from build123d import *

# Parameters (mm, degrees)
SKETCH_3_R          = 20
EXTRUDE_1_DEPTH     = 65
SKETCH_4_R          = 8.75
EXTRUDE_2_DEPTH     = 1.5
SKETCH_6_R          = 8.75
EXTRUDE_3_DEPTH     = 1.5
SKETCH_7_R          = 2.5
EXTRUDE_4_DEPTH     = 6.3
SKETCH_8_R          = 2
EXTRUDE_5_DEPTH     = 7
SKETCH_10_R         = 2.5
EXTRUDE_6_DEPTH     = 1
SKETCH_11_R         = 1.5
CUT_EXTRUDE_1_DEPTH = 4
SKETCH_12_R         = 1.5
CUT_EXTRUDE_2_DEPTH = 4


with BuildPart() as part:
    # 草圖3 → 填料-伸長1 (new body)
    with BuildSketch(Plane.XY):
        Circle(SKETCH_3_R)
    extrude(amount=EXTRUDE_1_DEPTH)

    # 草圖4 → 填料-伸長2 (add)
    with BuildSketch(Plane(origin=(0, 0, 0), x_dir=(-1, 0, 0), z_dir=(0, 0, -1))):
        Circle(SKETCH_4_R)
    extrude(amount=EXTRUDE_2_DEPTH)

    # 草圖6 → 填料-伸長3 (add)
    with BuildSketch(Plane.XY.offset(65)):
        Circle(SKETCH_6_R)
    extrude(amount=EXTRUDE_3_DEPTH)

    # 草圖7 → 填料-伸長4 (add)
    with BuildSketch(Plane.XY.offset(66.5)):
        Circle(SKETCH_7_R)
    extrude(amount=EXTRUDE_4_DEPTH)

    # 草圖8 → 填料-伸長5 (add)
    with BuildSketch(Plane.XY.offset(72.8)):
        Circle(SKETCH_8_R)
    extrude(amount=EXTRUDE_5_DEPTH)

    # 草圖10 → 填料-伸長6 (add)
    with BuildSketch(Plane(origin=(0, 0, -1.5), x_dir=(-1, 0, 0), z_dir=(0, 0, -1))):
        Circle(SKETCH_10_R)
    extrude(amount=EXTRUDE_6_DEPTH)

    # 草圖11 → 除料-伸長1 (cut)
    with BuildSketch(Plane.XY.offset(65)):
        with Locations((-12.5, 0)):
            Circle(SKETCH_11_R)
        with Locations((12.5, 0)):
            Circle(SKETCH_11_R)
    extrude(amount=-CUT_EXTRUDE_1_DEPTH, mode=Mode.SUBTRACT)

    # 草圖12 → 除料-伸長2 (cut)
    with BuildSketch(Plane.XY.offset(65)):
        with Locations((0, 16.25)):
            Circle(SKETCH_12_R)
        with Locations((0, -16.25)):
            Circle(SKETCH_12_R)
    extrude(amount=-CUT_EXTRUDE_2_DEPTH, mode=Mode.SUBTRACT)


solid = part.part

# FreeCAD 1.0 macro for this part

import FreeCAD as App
import Part
import Sketcher

doc = App.newDocument("Part")
body = doc.addObject("PartDesign::Body", "Body")

sketch1 = body.newObject("Sketcher::SketchObject", "Sketch")
sketch1.AttachmentSupport = (doc.getObject("XY_Plane"), [""])
sketch1.MapMode = "FlatFace"
sketch1.addGeometry(Part.Circle(App.Vector(0, 0, 0), App.Vector(0, 0, 1), 20), False)
sketch1.addConstraint([
    Sketcher.Constraint("Coincident", 0, 3, -1, 1),
    Sketcher.Constraint("Diameter", 0, 40.0),
])
pad1 = body.newObject("PartDesign::Pad", "Pad")
pad1.Profile = sketch1
pad1.Length = 65

sketch2 = body.newObject("Sketcher::SketchObject", "Sketch001")
sketch2.AttachmentSupport = (doc.getObject("XY_Plane"), [""])
sketch2.MapMode = "FlatFace"
sketch2.addGeometry(Part.Circle(App.Vector(0, 0, 0), App.Vector(0, 0, 1), 9), False)
sketch2.addConstraint([
    Sketcher.Constraint("Coincident", 0, 3, -1, 1),
    Sketcher.Constraint("Diameter", 0, 17.5),
])
pad2 = body.newObject("PartDesign::Pad", "Pad001")
pad2.Profile = sketch2
pad2.Length = 1.5
pad2.Reversed = True

sketch3 = body.newObject("Sketcher::SketchObject", "Sketch002")
sketch3.AttachmentSupport = (doc.getObject("XY_Plane"), [""])
sketch3.MapMode = "FlatFace"
sketch3.AttachmentOffset = App.Placement(App.Vector(0, 0, 65), App.Rotation())
sketch3.addGeometry(Part.Circle(App.Vector(0, 0, 0), App.Vector(0, 0, 1), 9), False)
sketch3.addConstraint([
    Sketcher.Constraint("Coincident", 0, 3, -1, 1),
    Sketcher.Constraint("Diameter", 0, 17.5),
])
pad3 = body.newObject("PartDesign::Pad", "Pad002")
pad3.Profile = sketch3
pad3.Length = 1.5

sketch4 = body.newObject("Sketcher::SketchObject", "Sketch003")
sketch4.AttachmentSupport = (doc.getObject("XY_Plane"), [""])
sketch4.MapMode = "FlatFace"
sketch4.AttachmentOffset = App.Placement(App.Vector(0, 0, 66.5), App.Rotation())
sketch4.addGeometry(Part.Circle(App.Vector(0, 0, 0), App.Vector(0, 0, 1), 2.5), False)
sketch4.addConstraint([
    Sketcher.Constraint("Coincident", 0, 3, -1, 1),
    Sketcher.Constraint("Diameter", 0, 5.0),
])
pad4 = body.newObject("PartDesign::Pad", "Pad003")
pad4.Profile = sketch4
pad4.Length = 6.3

sketch5 = body.newObject("Sketcher::SketchObject", "Sketch004")
sketch5.AttachmentSupport = (doc.getObject("XY_Plane"), [""])
sketch5.MapMode = "FlatFace"
sketch5.AttachmentOffset = App.Placement(App.Vector(0, 0, 72.8), App.Rotation())
sketch5.addGeometry(Part.Circle(App.Vector(0, 0, 0), App.Vector(0, 0, 1), 2), False)
sketch5.addConstraint([
    Sketcher.Constraint("Coincident", 0, 3, -1, 1),
    Sketcher.Constraint("Diameter", 0, 4.0),
])
pad5 = body.newObject("PartDesign::Pad", "Pad004")
pad5.Profile = sketch5
pad5.Length = 7

sketch6 = body.newObject("Sketcher::SketchObject", "Sketch005")
sketch6.AttachmentSupport = (doc.getObject("XY_Plane"), [""])
sketch6.MapMode = "FlatFace"
sketch6.AttachmentOffset = App.Placement(App.Vector(0, 0, -1.5), App.Rotation())
sketch6.addGeometry(Part.Circle(App.Vector(0, 0, 0), App.Vector(0, 0, 1), 2.5), False)
sketch6.addConstraint([
    Sketcher.Constraint("Coincident", 0, 3, -1, 1),
    Sketcher.Constraint("Diameter", 0, 5.0),
])
pad6 = body.newObject("PartDesign::Pad", "Pad005")
pad6.Profile = sketch6
pad6.Length = 1
pad6.Reversed = True

sketch7 = body.newObject("Sketcher::SketchObject", "Sketch006")
sketch7.AttachmentSupport = (doc.getObject("XY_Plane"), [""])
sketch7.MapMode = "FlatFace"
sketch7.AttachmentOffset = App.Placement(App.Vector(0, 0, 65), App.Rotation())
sketch7.addGeometry([
    Part.Circle(App.Vector(-12.5, 0, 0), App.Vector(0, 0, 1), 1.5),
    Part.Circle(App.Vector(12.5, 0, 0), App.Vector(0, 0, 1), 1.5),
], False)
sketch7.addConstraint([
    Sketcher.Constraint("Equal", 0, 1),
    Sketcher.Constraint("Symmetric", 0, 3, 1, 3, -1, 1),
    Sketcher.Constraint("PointOnObject", 0, 3, -1),
    Sketcher.Constraint("Diameter", 0, 3.0),
    Sketcher.Constraint("DistanceX", 0, 3, 1, 3, 25.0),
])
pocket1 = body.newObject("PartDesign::Pocket", "Pocket")
pocket1.Profile = sketch7
pocket1.Length = 4

sketch8 = body.newObject("Sketcher::SketchObject", "Sketch007")
sketch8.AttachmentSupport = (doc.getObject("XY_Plane"), [""])
sketch8.MapMode = "FlatFace"
sketch8.AttachmentOffset = App.Placement(App.Vector(0, 0, 65), App.Rotation())
sketch8.addGeometry([
    Part.Circle(App.Vector(0, 16.2, 0), App.Vector(0, 0, 1), 1.5),
    Part.Circle(App.Vector(0, -16.2, 0), App.Vector(0, 0, 1), 1.5),
], False)
sketch8.addConstraint([
    Sketcher.Constraint("Equal", 0, 1),
    Sketcher.Constraint("Symmetric", 0, 3, 1, 3, -1, 1),
    Sketcher.Constraint("PointOnObject", 0, 3, -2),
    Sketcher.Constraint("Diameter", 0, 3.0),
    Sketcher.Constraint("DistanceY", 1, 3, 0, 3, 32.5),
])
pocket2 = body.newObject("PartDesign::Pocket", "Pocket001")
pocket2.Profile = sketch8
pocket2.Length = 4

doc.recompute()
